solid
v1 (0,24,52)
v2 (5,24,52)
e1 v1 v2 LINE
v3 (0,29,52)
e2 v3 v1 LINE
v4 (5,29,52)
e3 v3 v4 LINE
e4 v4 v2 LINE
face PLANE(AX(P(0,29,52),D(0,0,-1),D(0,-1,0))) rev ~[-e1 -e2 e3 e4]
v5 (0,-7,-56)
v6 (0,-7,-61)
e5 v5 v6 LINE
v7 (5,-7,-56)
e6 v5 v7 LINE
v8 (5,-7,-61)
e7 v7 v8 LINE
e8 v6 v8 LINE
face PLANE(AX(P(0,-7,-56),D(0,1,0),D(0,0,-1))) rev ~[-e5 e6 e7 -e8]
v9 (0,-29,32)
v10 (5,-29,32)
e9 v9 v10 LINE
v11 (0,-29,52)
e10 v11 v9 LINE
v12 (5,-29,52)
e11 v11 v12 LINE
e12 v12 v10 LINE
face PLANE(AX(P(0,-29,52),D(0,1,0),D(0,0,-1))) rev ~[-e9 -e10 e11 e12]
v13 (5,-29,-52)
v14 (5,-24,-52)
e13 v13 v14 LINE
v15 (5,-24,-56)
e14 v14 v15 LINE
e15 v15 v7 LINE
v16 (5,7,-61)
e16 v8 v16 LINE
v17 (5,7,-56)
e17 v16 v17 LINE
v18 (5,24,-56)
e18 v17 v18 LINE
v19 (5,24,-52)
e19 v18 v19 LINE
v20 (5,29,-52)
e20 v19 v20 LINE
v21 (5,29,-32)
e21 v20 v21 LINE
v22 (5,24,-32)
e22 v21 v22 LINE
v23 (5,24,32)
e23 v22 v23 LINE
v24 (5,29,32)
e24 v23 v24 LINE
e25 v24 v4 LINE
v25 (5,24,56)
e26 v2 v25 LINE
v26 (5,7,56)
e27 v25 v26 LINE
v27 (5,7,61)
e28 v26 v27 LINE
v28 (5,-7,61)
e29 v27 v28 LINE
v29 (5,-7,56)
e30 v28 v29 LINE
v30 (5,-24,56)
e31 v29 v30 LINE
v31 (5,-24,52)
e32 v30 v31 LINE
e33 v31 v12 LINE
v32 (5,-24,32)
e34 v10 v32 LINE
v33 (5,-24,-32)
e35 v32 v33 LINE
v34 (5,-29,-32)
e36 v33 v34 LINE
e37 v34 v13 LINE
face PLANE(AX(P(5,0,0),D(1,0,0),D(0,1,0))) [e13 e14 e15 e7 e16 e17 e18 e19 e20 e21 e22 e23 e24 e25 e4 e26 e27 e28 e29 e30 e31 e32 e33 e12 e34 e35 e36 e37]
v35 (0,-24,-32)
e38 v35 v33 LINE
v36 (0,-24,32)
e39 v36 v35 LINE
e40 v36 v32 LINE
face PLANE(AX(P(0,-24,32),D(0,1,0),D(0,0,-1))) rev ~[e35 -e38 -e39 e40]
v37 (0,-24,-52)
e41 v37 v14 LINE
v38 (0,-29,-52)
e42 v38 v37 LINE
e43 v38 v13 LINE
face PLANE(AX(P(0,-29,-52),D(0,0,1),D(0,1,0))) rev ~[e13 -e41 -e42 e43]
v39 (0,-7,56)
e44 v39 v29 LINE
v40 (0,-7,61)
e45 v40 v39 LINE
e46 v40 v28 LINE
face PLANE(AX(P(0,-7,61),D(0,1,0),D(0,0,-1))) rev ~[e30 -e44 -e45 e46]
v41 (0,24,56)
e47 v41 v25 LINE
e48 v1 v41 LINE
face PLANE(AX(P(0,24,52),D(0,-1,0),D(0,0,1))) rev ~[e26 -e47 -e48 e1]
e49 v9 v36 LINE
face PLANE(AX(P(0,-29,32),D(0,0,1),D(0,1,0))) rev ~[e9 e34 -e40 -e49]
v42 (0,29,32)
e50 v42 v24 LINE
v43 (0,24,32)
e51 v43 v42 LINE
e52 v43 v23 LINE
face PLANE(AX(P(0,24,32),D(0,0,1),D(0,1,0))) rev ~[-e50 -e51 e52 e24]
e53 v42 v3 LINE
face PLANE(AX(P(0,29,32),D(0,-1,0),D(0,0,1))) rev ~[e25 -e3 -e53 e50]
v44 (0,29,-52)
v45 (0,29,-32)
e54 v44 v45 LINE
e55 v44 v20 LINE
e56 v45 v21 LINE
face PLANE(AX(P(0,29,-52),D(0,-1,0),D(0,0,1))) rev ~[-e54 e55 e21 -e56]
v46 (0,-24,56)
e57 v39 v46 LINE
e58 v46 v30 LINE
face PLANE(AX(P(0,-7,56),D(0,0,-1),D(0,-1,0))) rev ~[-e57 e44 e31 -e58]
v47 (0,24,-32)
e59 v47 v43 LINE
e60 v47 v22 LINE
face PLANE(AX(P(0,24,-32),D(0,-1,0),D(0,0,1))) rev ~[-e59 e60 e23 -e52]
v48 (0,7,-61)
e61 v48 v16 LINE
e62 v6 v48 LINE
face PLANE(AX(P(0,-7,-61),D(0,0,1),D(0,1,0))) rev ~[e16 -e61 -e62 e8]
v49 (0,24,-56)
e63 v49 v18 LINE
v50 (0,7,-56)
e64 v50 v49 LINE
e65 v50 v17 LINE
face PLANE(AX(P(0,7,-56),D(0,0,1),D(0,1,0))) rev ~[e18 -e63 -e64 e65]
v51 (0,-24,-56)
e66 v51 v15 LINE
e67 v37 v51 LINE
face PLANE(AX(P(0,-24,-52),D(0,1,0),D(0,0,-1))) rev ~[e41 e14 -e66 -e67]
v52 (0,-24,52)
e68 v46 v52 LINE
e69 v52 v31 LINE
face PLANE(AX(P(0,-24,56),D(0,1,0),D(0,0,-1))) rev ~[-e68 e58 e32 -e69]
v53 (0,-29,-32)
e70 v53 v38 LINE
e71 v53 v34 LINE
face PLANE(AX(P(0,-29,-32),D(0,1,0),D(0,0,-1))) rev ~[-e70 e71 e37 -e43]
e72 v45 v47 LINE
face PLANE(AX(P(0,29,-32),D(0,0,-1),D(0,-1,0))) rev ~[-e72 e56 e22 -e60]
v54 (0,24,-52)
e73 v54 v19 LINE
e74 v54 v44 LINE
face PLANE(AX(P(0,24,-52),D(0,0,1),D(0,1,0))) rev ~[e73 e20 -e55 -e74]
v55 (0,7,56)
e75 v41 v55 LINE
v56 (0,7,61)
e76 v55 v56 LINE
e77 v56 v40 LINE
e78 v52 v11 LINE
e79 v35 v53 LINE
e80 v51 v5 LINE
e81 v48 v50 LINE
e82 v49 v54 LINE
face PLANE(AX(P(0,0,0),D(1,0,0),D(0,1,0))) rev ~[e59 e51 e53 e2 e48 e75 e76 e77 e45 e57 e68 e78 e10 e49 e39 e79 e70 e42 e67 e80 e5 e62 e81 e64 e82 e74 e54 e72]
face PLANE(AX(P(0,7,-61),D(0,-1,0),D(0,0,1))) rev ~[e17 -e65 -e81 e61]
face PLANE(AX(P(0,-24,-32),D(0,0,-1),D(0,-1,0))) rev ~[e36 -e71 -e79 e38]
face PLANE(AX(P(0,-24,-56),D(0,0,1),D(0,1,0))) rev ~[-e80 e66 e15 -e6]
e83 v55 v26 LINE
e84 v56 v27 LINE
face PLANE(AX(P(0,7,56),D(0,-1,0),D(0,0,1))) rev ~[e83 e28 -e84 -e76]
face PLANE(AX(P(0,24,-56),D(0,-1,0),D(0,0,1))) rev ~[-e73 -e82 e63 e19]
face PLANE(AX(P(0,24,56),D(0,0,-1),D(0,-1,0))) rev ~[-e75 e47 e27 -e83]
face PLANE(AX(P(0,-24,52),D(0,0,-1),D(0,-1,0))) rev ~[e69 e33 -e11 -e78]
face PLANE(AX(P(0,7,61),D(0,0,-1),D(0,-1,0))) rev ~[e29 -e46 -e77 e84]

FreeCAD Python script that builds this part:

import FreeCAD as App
import Part
import Sketcher
Q = App.Units.Quantity

doc = App.newDocument("Part")
body = doc.addObject("PartDesign::Body", "Body")

# Sketch on YZ plane
sketch1 = body.newObject("Sketcher::SketchObject", "Sketch")
sketch1.AttachmentSupport = (doc.getObject("YZ_Plane"), [""])
sketch1.MapMode = "FlatFace"
sketch1.addGeometry([
    Part.LineSegment(App.Vector(-7, 56, 0), App.Vector(-24, 56, 0)),  # 0
    Part.LineSegment(App.Vector(-24, 56, 0), App.Vector(-24, 52, 0)),  # 1
    Part.LineSegment(App.Vector(-24, 52, 0), App.Vector(-29, 52, 0)),  # 2
    Part.LineSegment(App.Vector(-29, 52, 0), App.Vector(-29, 32, 0)),  # 3
    Part.LineSegment(App.Vector(-29, 32, 0), App.Vector(-24, 32, 0)),  # 4
    Part.LineSegment(App.Vector(-24, 32, 0), App.Vector(-24, -32, 0)),  # 5
    Part.LineSegment(App.Vector(-24, -32, 0), App.Vector(-29, -32, 0)),  # 6
    Part.LineSegment(App.Vector(-29, -32, 0), App.Vector(-29, -52, 0)),  # 7
    Part.LineSegment(App.Vector(-29, -52, 0), App.Vector(-24, -52, 0)),  # 8
    Part.LineSegment(App.Vector(-24, -52, 0), App.Vector(-24, -56, 0)),  # 9
    Part.LineSegment(App.Vector(-24, -56, 0), App.Vector(-7, -56, 0)),  # 10
    Part.LineSegment(App.Vector(-7, -56, 0), App.Vector(-7, -61, 0)),  # 11
    Part.LineSegment(App.Vector(-7, -61, 0), App.Vector(7, -61, 0)),  # 12
    Part.LineSegment(App.Vector(7, -61, 0), App.Vector(7, -56, 0)),  # 13
    Part.LineSegment(App.Vector(7, -56, 0), App.Vector(24, -56, 0)),  # 14
    Part.LineSegment(App.Vector(24, -56, 0), App.Vector(24, -52, 0)),  # 15
    Part.LineSegment(App.Vector(24, -52, 0), App.Vector(29, -52, 0)),  # 16
    Part.LineSegment(App.Vector(29, -52, 0), App.Vector(29, -32, 0)),  # 17
    Part.LineSegment(App.Vector(29, -32, 0), App.Vector(24, -32, 0)),  # 18
    Part.LineSegment(App.Vector(24, -32, 0), App.Vector(24, 32, 0)),  # 19
    Part.LineSegment(App.Vector(24, 32, 0), App.Vector(29, 32, 0)),  # 20
    Part.LineSegment(App.Vector(29, 32, 0), App.Vector(29, 52, 0)),  # 21
    Part.LineSegment(App.Vector(29, 52, 0), App.Vector(24, 52, 0)),  # 22
    Part.LineSegment(App.Vector(24, 52, 0), App.Vector(24, 56, 0)),  # 23
    Part.LineSegment(App.Vector(24, 56, 0), App.Vector(7, 56, 0)),  # 24
    Part.LineSegment(App.Vector(7, 56, 0), App.Vector(7, 61, 0)),  # 25
    Part.LineSegment(App.Vector(7, 61, 0), App.Vector(-7, 61, 0)),  # 26
    Part.LineSegment(App.Vector(-7, 61, 0), App.Vector(-7, 56, 0)),  # 27
], False)
sketch1.addConstraint([
    Sketcher.Constraint("Coincident", 0, 2, 1, 1),
    Sketcher.Constraint("Coincident", 1, 2, 2, 1),
    Sketcher.Constraint("Coincident", 2, 2, 3, 1),
    Sketcher.Constraint("Coincident", 3, 2, 4, 1),
    Sketcher.Constraint("Coincident", 4, 2, 5, 1),
    Sketcher.Constraint("Coincident", 5, 2, 6, 1),
    Sketcher.Constraint("Coincident", 6, 2, 7, 1),
    Sketcher.Constraint("Coincident", 7, 2, 8, 1),
    Sketcher.Constraint("Coincident", 8, 2, 9, 1),
    Sketcher.Constraint("Coincident", 9, 2, 10, 1),
    Sketcher.Constraint("Coincident", 10, 2, 11, 1),
    Sketcher.Constraint("Coincident", 11, 2, 12, 1),
    Sketcher.Constraint("Coincident", 12, 2, 13, 1),
    Sketcher.Constraint("Coincident", 13, 2, 14, 1),
    Sketcher.Constraint("Coincident", 14, 2, 15, 1),
    Sketcher.Constraint("Coincident", 15, 2, 16, 1),
    Sketcher.Constraint("Coincident", 16, 2, 17, 1),
    Sketcher.Constraint("Coincident", 17, 2, 18, 1),
    Sketcher.Constraint("Coincident", 18, 2, 19, 1),
    Sketcher.Constraint("Coincident", 19, 2, 20, 1),
    Sketcher.Constraint("Coincident", 20, 2, 21, 1),
    Sketcher.Constraint("Coincident", 21, 2, 22, 1),
    Sketcher.Constraint("Coincident", 22, 2, 23, 1),
    Sketcher.Constraint("Coincident", 23, 2, 24, 1),
    Sketcher.Constraint("Coincident", 24, 2, 25, 1),
    Sketcher.Constraint("Coincident", 25, 2, 26, 1),
    Sketcher.Constraint("Coincident", 26, 2, 27, 1),
    Sketcher.Constraint("Coincident", 27, 2, 0, 1),
    Sketcher.Constraint("Horizontal", 0),
    Sketcher.Constraint("Vertical", 1),
    Sketcher.Constraint("Horizontal", 2),
    Sketcher.Constraint("Vertical", 3),
    Sketcher.Constraint("Horizontal", 4),
    Sketcher.Constraint("Vertical", 5),
    Sketcher.Constraint("Horizontal", 6),
    Sketcher.Constraint("Vertical", 7),
    Sketcher.Constraint("Horizontal", 8),
    Sketcher.Constraint("Vertical", 9),
    Sketcher.Constraint("Horizontal", 10),
    Sketcher.Constraint("Vertical", 11),
    Sketcher.Constraint("Horizontal", 12),
    Sketcher.Constraint("Vertical", 13),
    Sketcher.Constraint("Horizontal", 14),
    Sketcher.Constraint("Vertical", 15),
    Sketcher.Constraint("Horizontal", 16),
    Sketcher.Constraint("Vertical", 17),
    Sketcher.Constraint("Horizontal", 18),
    Sketcher.Constraint("Vertical", 19),
    Sketcher.Constraint("Horizontal", 20),
    Sketcher.Constraint("Vertical", 21),
    Sketcher.Constraint("Horizontal", 22),
    Sketcher.Constraint("Vertical", 23),
    Sketcher.Constraint("Horizontal", 24),
    Sketcher.Constraint("Vertical", 25),
    Sketcher.Constraint("Horizontal", 26),
    Sketcher.Constraint("Vertical", 27),
    Sketcher.Constraint("Symmetric", 0, 2, 14, 2, -1, 1),
    Sketcher.Constraint("Symmetric", 2, 2, 16, 2, -1, 1),
    Sketcher.Constraint("Symmetric", 4, 2, 18, 2, -1, 1),
    Sketcher.Constraint("Symmetric", 6, 2, 20, 2, -1, 1),
    Sketcher.Constraint("Symmetric", 8, 2, 22, 2, -1, 1),
    Sketcher.Constraint("Symmetric", 10, 2, 24, 2, -1, 1),
    Sketcher.Constraint("Symmetric", 12, 2, 26, 2, -1, 1),
    Sketcher.Constraint("Symmetric", 10, 2, 13, 2, -2),
    Sketcher.Constraint("Symmetric", 8, 2, 15, 2, -2),
    Sketcher.Constraint("Symmetric", 6, 2, 17, 2, -2),
    Sketcher.Constraint("Vertical", 1, 2, 4, 2),
    Sketcher.Constraint("Equal", 22, 11),
    Sketcher.Constraint("DistanceX", 0, 2, 0, 1, Q("17 mm")),
    Sketcher.Constraint("DistanceX", 2, 2, 2, 1, Q("5 mm")),
    Sketcher.Constraint("DistanceX", 12, 1, 12, 2, Q("14 mm")),
    Sketcher.Constraint("DistanceY", 1, 2, 1, 1, Q("4 mm")),
    Sketcher.Constraint("DistanceY", 3, 2, 3, 1, Q("20 mm")),
    Sketcher.Constraint("DistanceY", 5, 2, 5, 1, Q("64 mm")),
])
pad1 = body.newObject("PartDesign::Pad", "Pad")
pad1.Profile = sketch1
pad1.Length = 5

doc.recompute()
